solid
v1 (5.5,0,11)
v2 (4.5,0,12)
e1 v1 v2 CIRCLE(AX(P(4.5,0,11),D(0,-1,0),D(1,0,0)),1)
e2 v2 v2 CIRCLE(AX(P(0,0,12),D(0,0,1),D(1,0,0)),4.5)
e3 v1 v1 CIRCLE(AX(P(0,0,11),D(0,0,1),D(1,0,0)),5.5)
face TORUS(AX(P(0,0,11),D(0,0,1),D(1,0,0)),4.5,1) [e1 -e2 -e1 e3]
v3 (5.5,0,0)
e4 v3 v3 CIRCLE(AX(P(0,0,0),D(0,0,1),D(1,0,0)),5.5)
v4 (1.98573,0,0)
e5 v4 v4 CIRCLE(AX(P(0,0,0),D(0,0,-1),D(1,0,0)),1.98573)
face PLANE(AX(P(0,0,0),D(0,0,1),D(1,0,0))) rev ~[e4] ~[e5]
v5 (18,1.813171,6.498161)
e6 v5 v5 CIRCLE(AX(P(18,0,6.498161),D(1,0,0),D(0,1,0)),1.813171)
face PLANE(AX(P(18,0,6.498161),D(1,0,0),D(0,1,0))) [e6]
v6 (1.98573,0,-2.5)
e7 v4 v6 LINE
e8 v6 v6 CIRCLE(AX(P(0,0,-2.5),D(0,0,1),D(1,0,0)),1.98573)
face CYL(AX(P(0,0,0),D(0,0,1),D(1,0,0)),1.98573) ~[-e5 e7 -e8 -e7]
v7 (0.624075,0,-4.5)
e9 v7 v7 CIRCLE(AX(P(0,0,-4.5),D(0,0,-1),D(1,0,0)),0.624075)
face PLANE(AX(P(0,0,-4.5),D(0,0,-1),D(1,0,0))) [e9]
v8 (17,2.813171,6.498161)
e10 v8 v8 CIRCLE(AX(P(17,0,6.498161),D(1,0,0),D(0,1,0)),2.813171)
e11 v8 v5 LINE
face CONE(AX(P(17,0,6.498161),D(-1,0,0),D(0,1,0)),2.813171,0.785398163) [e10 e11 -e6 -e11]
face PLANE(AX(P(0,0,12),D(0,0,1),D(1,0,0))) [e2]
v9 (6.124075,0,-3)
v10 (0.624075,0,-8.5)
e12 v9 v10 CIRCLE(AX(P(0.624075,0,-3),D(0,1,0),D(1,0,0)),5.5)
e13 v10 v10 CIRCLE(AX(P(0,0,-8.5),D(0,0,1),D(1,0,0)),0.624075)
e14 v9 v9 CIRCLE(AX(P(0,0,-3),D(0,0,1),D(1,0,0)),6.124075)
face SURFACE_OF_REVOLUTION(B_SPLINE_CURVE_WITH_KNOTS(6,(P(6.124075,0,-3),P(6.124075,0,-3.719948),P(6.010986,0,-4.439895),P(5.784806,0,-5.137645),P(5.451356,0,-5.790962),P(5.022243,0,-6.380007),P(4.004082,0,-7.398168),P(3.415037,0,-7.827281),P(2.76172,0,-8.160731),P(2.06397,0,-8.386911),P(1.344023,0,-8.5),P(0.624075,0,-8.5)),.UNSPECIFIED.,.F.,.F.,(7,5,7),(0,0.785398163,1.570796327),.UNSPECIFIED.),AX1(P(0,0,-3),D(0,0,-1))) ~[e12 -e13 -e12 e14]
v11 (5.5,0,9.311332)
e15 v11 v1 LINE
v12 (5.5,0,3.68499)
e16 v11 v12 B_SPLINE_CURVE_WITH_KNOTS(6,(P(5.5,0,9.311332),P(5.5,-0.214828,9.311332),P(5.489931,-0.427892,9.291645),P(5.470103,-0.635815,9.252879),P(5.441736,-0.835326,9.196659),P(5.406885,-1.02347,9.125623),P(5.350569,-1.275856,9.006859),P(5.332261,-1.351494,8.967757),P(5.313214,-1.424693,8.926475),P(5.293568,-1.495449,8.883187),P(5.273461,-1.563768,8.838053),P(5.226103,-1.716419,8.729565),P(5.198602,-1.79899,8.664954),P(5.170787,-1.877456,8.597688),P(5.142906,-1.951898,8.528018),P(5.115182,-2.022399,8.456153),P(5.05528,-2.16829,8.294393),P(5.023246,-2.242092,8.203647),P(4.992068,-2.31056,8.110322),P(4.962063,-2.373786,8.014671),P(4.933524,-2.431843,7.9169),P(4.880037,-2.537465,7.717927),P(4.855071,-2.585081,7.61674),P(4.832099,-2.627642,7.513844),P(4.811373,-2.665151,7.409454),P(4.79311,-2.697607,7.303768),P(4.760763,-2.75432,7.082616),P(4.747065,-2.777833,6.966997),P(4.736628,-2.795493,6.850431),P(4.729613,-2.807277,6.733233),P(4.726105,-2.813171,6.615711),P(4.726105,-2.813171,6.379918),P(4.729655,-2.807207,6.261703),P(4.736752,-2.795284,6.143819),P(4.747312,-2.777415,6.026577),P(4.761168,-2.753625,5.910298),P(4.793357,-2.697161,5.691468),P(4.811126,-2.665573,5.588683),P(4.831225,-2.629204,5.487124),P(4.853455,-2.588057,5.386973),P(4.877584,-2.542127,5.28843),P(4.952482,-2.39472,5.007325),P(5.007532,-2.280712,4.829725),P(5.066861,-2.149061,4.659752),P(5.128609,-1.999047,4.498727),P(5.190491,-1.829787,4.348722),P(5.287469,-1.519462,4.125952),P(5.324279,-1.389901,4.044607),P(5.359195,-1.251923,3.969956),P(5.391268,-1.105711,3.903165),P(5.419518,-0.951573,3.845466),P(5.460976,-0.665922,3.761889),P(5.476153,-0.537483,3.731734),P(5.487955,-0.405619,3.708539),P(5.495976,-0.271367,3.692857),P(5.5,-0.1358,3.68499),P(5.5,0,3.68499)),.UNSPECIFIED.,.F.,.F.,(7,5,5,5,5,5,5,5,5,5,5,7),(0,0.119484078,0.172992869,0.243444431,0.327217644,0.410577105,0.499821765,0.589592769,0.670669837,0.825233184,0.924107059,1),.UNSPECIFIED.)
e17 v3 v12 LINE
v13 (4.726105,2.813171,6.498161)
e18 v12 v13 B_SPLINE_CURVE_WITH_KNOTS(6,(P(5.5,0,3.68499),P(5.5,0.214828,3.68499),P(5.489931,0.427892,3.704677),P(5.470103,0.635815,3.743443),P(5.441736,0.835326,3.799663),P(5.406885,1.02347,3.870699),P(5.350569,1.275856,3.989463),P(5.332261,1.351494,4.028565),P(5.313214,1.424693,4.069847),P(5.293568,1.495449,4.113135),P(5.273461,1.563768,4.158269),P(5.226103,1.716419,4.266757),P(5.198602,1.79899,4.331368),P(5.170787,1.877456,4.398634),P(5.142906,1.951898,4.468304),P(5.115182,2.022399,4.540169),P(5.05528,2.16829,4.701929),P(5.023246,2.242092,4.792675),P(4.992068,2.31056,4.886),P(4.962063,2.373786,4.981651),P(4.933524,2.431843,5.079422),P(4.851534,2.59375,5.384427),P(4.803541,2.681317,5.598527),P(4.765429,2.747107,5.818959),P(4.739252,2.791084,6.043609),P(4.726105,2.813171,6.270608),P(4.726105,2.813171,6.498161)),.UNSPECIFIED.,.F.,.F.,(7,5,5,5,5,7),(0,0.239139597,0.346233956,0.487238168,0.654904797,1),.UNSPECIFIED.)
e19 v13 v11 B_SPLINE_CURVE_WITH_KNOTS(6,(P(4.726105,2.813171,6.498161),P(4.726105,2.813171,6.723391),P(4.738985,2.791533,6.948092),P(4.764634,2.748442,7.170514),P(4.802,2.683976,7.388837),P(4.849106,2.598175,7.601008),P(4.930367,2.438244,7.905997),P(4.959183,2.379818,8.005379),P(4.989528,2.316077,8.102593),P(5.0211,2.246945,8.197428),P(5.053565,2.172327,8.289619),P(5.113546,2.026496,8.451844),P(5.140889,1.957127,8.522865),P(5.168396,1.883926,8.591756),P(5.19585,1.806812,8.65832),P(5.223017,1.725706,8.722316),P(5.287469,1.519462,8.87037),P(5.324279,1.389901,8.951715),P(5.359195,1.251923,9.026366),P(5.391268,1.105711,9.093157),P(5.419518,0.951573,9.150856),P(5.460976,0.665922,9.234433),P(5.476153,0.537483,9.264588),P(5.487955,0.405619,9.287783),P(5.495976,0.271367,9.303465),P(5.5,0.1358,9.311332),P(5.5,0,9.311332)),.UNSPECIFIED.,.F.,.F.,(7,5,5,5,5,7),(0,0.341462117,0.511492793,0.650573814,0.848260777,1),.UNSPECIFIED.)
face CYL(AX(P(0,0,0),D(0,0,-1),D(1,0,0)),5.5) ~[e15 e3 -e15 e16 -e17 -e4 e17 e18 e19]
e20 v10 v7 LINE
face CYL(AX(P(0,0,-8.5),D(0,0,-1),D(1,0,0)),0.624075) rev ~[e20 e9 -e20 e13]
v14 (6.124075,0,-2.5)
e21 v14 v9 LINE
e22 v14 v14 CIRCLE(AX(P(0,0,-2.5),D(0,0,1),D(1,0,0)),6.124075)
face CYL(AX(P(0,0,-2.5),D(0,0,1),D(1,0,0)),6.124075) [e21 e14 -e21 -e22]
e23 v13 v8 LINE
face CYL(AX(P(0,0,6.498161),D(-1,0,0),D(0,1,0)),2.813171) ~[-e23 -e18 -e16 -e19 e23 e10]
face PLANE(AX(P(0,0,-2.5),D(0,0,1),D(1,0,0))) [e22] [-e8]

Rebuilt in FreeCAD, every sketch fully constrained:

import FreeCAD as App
import Part
import Sketcher

V = App.Vector
Q = App.Units.Quantity


def edges_at(feature, points):
    """Names of the edges that pass closest to the given points."""
    edges = feature.Shape.Edges
    near = lambda p: min(range(len(edges)), key=lambda i: edges[i].distToShape(Part.Vertex(*p))[0])
    return sorted({f"Edge{near(p) + 1}" for p in points})

doc = App.newDocument("Part")
body = doc.addObject("PartDesign::Body", "Body")

sketch1 = body.newObject("Sketcher::SketchObject", "Sketch")
sketch1.AttachmentSupport = (doc.getObject("XY_Plane"), [""])
sketch1.MapMode = "FlatFace"
sketch1.addGeometry(Part.Circle(V(0, 0, 0), V(0, 0, 1), 5.5), False)
sketch1.addConstraint(Sketcher.Constraint("Coincident", 0, 3, -1, 1))
sketch1.addConstraint(Sketcher.Constraint("Diameter", 0, Q("11 mm")))
pad1 = body.newObject("PartDesign::Pad", "Pad")
pad1.Profile = sketch1
pad1.Length = 12
doc.recompute()

fillet = body.newObject("PartDesign::Fillet", "Fillet")
fillet.Base = (pad1, edges_at(pad1, [(-5.5, 0, 12)]))
fillet.Radius = 1

sketch2 = body.newObject("Sketcher::SketchObject", "Sketch001")
sketch2.AttachmentSupport = (doc.getObject("XY_Plane"), [""])
sketch2.MapMode = "FlatFace"
sketch2.addGeometry(Part.Circle(V(0, 0, 0), V(0, 0, 1), 1.98573), False)
sketch2.addConstraint(Sketcher.Constraint("Coincident", 0, 3, -1, 1))
sketch2.addConstraint(Sketcher.Constraint("Diameter", 0, Q("3.97146 mm")))
pad2 = body.newObject("PartDesign::Pad", "Pad001")
pad2.Profile = sketch2
pad2.Length = 5
pad2.Reversed = True

sketch3 = body.newObject("Sketcher::SketchObject", "Sketch002")
sketch3.AttachmentSupport = (doc.getObject("XY_Plane"), [""])
sketch3.MapMode = "FlatFace"
sketch3.AttachmentOffset = App.Placement(V(0, 0, -2.5), App.Rotation())
sketch3.addGeometry(Part.Circle(V(0, 0, 0), V(0, 0, 1), 6.124075), False)
sketch3.addConstraint(Sketcher.Constraint("Coincident", 0, 3, -1, 1))
sketch3.addConstraint(Sketcher.Constraint("Diameter", 0, Q("12.24815 mm")))
pad3 = body.newObject("PartDesign::Pad", "Pad002")
pad3.Profile = sketch3
pad3.Length = 6
pad3.Reversed = True
doc.recompute()

fillet2 = body.newObject("PartDesign::Fillet", "Fillet001")
fillet2.Base = (pad3, edges_at(pad3, [(-6.124, 0, -8.5)]))
fillet2.Radius = 5.5

sketch4 = body.newObject("Sketcher::SketchObject", "Sketch003")
sketch4.AttachmentSupport = (doc.getObject("XY_Plane"), [""])
sketch4.MapMode = "FlatFace"
sketch4.AttachmentOffset = App.Placement(V(0, 0, -8.5), App.Rotation())
sketch4.addGeometry(Part.Circle(V(0, 0, 0), V(0, 0, 1), 0.624075), False)
sketch4.addConstraint(Sketcher.Constraint("Coincident", 0, 3, -1, 1))
sketch4.addConstraint(Sketcher.Constraint("Diameter", 0, Q("1.24815 mm")))
pocket1 = body.newObject("PartDesign::Pocket", "Pocket")
pocket1.Profile = sketch4
pocket1.Length = 4
pocket1.Reversed = True

sketch5 = body.newObject("Sketcher::SketchObject", "Sketch004")
sketch5.AttachmentSupport = (doc.getObject("YZ_Plane"), [""])
sketch5.MapMode = "FlatFace"
sketch5.addGeometry(Part.Circle(V(0, 6.498161, 0), V(0, 0, 1), 2.813171), False)
sketch5.addConstraint(Sketcher.Constraint("PointOnObject", 0, 3, -2))
sketch5.addConstraint(Sketcher.Constraint("Diameter", 0, Q("5.626342 mm")))
sketch5.addConstraint(Sketcher.Constraint("DistanceY", -1, 1, 0, 3, Q("6.498161 mm")))
pad4 = body.newObject("PartDesign::Pad", "Pad003")
pad4.Profile = sketch5
pad4.Length = 18
doc.recompute()

chamfer = body.newObject("PartDesign::Chamfer", "Chamfer")
chamfer.Base = (pad4, edges_at(pad4, [(18, -2.813, 6.498)]))
chamfer.Size = 1

doc.recompute()
